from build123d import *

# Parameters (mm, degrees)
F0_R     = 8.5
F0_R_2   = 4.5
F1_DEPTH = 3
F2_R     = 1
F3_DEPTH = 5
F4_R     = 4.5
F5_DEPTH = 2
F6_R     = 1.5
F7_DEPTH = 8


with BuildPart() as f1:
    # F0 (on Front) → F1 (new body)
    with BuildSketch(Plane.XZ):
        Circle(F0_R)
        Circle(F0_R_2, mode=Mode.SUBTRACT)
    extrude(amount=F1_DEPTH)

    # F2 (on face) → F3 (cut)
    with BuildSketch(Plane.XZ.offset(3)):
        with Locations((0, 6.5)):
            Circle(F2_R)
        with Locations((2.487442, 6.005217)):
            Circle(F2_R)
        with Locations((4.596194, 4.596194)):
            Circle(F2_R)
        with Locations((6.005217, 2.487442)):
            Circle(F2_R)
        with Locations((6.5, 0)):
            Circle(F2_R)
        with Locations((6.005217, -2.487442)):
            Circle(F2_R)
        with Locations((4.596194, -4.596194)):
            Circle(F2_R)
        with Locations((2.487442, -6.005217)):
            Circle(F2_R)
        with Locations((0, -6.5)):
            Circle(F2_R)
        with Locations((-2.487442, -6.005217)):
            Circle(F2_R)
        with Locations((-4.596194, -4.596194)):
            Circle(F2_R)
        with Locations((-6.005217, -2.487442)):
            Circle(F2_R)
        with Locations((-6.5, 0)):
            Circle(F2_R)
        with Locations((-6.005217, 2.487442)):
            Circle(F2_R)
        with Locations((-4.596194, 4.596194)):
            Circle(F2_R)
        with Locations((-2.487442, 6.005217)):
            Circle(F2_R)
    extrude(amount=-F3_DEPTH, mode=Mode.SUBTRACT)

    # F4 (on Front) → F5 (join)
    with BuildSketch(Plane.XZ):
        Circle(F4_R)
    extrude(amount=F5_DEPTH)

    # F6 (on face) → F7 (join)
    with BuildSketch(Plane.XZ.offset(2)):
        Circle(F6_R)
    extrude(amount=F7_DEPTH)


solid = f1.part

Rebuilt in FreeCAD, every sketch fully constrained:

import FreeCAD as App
import Part
import Sketcher
from FreeCAD import Vector
Q = App.Units.Quantity

doc = App.newDocument("Part")
body = doc.addObject("PartDesign::Body", "Body")

sketch1 = doc.addObject("Sketcher::SketchObject", "Sketch")
body.addObject(sketch1)
sketch1.AttachmentSupport = (doc.XZ_Plane, [""])
sketch1.MapMode = "FlatFace"
sketch1.addGeometry(Part.Circle(Vector(0, 0, 0), Vector(0, 0, 1), 8.5), False)
sketch1.addGeometry(Part.Circle(Vector(0, 0, 0), Vector(0, 0, 1), 4.5), False)
sketch1.addConstraint(Sketcher.Constraint("Coincident", 0, 3, -1, 1))
sketch1.addConstraint(Sketcher.Constraint("Coincident", 1, 3, -1, 1))
sketch1.addConstraint(Sketcher.Constraint("Diameter", 0, Q("17 mm")))
sketch1.addConstraint(Sketcher.Constraint("Diameter", 1, Q("9 mm")))
pad1 = doc.addObject("PartDesign::Pad", "Pad")
body.addObject(pad1)
pad1.Profile = sketch1
pad1.Length = 3

sketch2 = doc.addObject("Sketcher::SketchObject", "Sketch001")
body.addObject(sketch2)
sketch2.AttachmentSupport = (doc.XZ_Plane, [""])
sketch2.MapMode = "FlatFace"
sketch2.AttachmentOffset = App.Placement(Vector(0, 0, 3), App.Rotation())
sketch2.addGeometry(Part.Circle(Vector(0, 6.5, 0), Vector(0, 0, 1), 1), False)
sketch2.addGeometry(Part.Circle(Vector(2.5, 6, 0), Vector(0, 0, 1), 1), False)
sketch2.addGeometry(Part.Circle(Vector(4.6, 4.6, 0), Vector(0, 0, 1), 1), False)
sketch2.addGeometry(Part.Circle(Vector(6, 2.5, 0), Vector(0, 0, 1), 1), False)
sketch2.addGeometry(Part.Circle(Vector(6.5, 0, 0), Vector(0, 0, 1), 1), False)
sketch2.addGeometry(Part.Circle(Vector(6, -2.5, 0), Vector(0, 0, 1), 1), False)
sketch2.addGeometry(Part.Circle(Vector(4.6, -4.6, 0), Vector(0, 0, 1), 1), False)
sketch2.addGeometry(Part.Circle(Vector(2.5, -6, 0), Vector(0, 0, 1), 1), False)
sketch2.addGeometry(Part.Circle(Vector(0, -6.5, 0), Vector(0, 0, 1), 1), False)
sketch2.addGeometry(Part.Circle(Vector(-2.5, -6, 0), Vector(0, 0, 1), 1), False)
sketch2.addGeometry(Part.Circle(Vector(-4.6, -4.6, 0), Vector(0, 0, 1), 1), False)
sketch2.addGeometry(Part.Circle(Vector(-6, -2.5, 0), Vector(0, 0, 1), 1), False)
sketch2.addGeometry(Part.Circle(Vector(-6.5, 0, 0), Vector(0, 0, 1), 1), False)
sketch2.addGeometry(Part.Circle(Vector(-6, 2.5, 0), Vector(0, 0, 1), 1), False)
sketch2.addGeometry(Part.Circle(Vector(-4.6, 4.6, 0), Vector(0, 0, 1), 1), False)
sketch2.addGeometry(Part.Circle(Vector(-2.5, 6, 0), Vector(0, 0, 1), 1), False)
sketch2.addConstraint(Sketcher.Constraint("Equal", 0, 1))
sketch2.addConstraint(Sketcher.Constraint("Equal", 1, 2))
sketch2.addConstraint(Sketcher.Constraint("Equal", 2, 3))
sketch2.addConstraint(Sketcher.Constraint("Equal", 3, 4))
sketch2.addConstraint(Sketcher.Constraint("Equal", 4, 5))
sketch2.addConstraint(Sketcher.Constraint("Equal", 5, 6))
sketch2.addConstraint(Sketcher.Constraint("Equal", 6, 7))
sketch2.addConstraint(Sketcher.Constraint("Equal", 7, 8))
sketch2.addConstraint(Sketcher.Constraint("Equal", 8, 9))
sketch2.addConstraint(Sketcher.Constraint("Equal", 9, 10))
sketch2.addConstraint(Sketcher.Constraint("Equal", 10, 11))
sketch2.addConstraint(Sketcher.Constraint("Equal", 11, 12))
sketch2.addConstraint(Sketcher.Constraint("Equal", 12, 13))
sketch2.addConstraint(Sketcher.Constraint("Equal", 13, 14))
sketch2.addConstraint(Sketcher.Constraint("Equal", 14, 15))
sketch2.addConstraint(Sketcher.Constraint("Symmetric", 0, 3, 8, 3, -1, 1))
sketch2.addConstraint(Sketcher.Constraint("Symmetric", 1, 3, 9, 3, -1, 1))
sketch2.addConstraint(Sketcher.Constraint("Symmetric", 2, 3, 10, 3, -1, 1))
sketch2.addConstraint(Sketcher.Constraint("Symmetric", 3, 3, 11, 3, -1, 1))
sketch2.addConstraint(Sketcher.Constraint("Symmetric", 4, 3, 12, 3, -1, 1))
sketch2.addConstraint(Sketcher.Constraint("Symmetric", 5, 3, 13, 3, -1, 1))
sketch2.addConstraint(Sketcher.Constraint("Symmetric", 6, 3, 14, 3, -1, 1))
sketch2.addConstraint(Sketcher.Constraint("Symmetric", 7, 3, 15, 3, -1, 1))
sketch2.addConstraint(Sketcher.Constraint("Symmetric", 7, 3, 9, 3, -2))
sketch2.addConstraint(Sketcher.Constraint("Symmetric", 6, 3, 10, 3, -2))
sketch2.addConstraint(Sketcher.Constraint("Symmetric", 5, 3, 11, 3, -2))
sketch2.addConstraint(Sketcher.Constraint("PointOnObject", 0, 3, -2))
sketch2.addConstraint(Sketcher.Constraint("PointOnObject", 4, 3, -1))
sketch2.addConstraint(Sketcher.Constraint("Diameter", 0, Q("2 mm")))
sketch2.addConstraint(Sketcher.Constraint("DistanceY", -1, 1, 0, 3, Q("6.5 mm")))
sketch2.addConstraint(Sketcher.Constraint("DistanceX", -1, 1, 4, 3, Q("6.5 mm")))
sketch2.addConstraint(Sketcher.Constraint("DistanceX", 1, 3, 2, 3, Q("2.108752 mm")))
sketch2.addConstraint(Sketcher.Constraint("DistanceY", 3, 3, 2, 3, Q("2.108752 mm")))
sketch2.addConstraint(Sketcher.Constraint("DistanceY", 3, 3, 0, 3, Q("4.012558 mm")))
sketch2.addConstraint(Sketcher.Constraint("DistanceX", 1, 3, 4, 3, Q("4.012558 mm")))
sketch2.addConstraint(Sketcher.Constraint("DistanceY", 5, 3, 1, 3, Q("8.492659 mm")))
sketch2.addConstraint(Sketcher.Constraint("DistanceX", 9, 3, 5, 3, Q("8.492659 mm")))
pocket1 = doc.addObject("PartDesign::Pocket", "Pocket")
body.addObject(pocket1)
pocket1.Profile = sketch2
pocket1.Length = 5

sketch3 = doc.addObject("Sketcher::SketchObject", "Sketch002")
body.addObject(sketch3)
sketch3.AttachmentSupport = (doc.XZ_Plane, [""])
sketch3.MapMode = "FlatFace"
sketch3.addGeometry(Part.Circle(Vector(0, 0, 0), Vector(0, 0, 1), 4.5), False)
sketch3.addConstraint(Sketcher.Constraint("Coincident", 0, 3, -1, 1))
sketch3.addConstraint(Sketcher.Constraint("Diameter", 0, Q("9 mm")))
pad2 = doc.addObject("PartDesign::Pad", "Pad001")
body.addObject(pad2)
pad2.Profile = sketch3
pad2.Length = 2

sketch4 = doc.addObject("Sketcher::SketchObject", "Sketch003")
body.addObject(sketch4)
sketch4.AttachmentSupport = (doc.XZ_Plane, [""])
sketch4.MapMode = "FlatFace"
sketch4.AttachmentOffset = App.Placement(Vector(0, 0, 2), App.Rotation())
sketch4.addGeometry(Part.Circle(Vector(0, 0, 0), Vector(0, 0, 1), 1.5), False)
sketch4.addConstraint(Sketcher.Constraint("Coincident", 0, 3, -1, 1))
sketch4.addConstraint(Sketcher.Constraint("Diameter", 0, Q("3 mm")))
pad3 = doc.addObject("PartDesign::Pad", "Pad002")
body.addObject(pad3)
pad3.Profile = sketch4
pad3.Length = 8

doc.recompute()
